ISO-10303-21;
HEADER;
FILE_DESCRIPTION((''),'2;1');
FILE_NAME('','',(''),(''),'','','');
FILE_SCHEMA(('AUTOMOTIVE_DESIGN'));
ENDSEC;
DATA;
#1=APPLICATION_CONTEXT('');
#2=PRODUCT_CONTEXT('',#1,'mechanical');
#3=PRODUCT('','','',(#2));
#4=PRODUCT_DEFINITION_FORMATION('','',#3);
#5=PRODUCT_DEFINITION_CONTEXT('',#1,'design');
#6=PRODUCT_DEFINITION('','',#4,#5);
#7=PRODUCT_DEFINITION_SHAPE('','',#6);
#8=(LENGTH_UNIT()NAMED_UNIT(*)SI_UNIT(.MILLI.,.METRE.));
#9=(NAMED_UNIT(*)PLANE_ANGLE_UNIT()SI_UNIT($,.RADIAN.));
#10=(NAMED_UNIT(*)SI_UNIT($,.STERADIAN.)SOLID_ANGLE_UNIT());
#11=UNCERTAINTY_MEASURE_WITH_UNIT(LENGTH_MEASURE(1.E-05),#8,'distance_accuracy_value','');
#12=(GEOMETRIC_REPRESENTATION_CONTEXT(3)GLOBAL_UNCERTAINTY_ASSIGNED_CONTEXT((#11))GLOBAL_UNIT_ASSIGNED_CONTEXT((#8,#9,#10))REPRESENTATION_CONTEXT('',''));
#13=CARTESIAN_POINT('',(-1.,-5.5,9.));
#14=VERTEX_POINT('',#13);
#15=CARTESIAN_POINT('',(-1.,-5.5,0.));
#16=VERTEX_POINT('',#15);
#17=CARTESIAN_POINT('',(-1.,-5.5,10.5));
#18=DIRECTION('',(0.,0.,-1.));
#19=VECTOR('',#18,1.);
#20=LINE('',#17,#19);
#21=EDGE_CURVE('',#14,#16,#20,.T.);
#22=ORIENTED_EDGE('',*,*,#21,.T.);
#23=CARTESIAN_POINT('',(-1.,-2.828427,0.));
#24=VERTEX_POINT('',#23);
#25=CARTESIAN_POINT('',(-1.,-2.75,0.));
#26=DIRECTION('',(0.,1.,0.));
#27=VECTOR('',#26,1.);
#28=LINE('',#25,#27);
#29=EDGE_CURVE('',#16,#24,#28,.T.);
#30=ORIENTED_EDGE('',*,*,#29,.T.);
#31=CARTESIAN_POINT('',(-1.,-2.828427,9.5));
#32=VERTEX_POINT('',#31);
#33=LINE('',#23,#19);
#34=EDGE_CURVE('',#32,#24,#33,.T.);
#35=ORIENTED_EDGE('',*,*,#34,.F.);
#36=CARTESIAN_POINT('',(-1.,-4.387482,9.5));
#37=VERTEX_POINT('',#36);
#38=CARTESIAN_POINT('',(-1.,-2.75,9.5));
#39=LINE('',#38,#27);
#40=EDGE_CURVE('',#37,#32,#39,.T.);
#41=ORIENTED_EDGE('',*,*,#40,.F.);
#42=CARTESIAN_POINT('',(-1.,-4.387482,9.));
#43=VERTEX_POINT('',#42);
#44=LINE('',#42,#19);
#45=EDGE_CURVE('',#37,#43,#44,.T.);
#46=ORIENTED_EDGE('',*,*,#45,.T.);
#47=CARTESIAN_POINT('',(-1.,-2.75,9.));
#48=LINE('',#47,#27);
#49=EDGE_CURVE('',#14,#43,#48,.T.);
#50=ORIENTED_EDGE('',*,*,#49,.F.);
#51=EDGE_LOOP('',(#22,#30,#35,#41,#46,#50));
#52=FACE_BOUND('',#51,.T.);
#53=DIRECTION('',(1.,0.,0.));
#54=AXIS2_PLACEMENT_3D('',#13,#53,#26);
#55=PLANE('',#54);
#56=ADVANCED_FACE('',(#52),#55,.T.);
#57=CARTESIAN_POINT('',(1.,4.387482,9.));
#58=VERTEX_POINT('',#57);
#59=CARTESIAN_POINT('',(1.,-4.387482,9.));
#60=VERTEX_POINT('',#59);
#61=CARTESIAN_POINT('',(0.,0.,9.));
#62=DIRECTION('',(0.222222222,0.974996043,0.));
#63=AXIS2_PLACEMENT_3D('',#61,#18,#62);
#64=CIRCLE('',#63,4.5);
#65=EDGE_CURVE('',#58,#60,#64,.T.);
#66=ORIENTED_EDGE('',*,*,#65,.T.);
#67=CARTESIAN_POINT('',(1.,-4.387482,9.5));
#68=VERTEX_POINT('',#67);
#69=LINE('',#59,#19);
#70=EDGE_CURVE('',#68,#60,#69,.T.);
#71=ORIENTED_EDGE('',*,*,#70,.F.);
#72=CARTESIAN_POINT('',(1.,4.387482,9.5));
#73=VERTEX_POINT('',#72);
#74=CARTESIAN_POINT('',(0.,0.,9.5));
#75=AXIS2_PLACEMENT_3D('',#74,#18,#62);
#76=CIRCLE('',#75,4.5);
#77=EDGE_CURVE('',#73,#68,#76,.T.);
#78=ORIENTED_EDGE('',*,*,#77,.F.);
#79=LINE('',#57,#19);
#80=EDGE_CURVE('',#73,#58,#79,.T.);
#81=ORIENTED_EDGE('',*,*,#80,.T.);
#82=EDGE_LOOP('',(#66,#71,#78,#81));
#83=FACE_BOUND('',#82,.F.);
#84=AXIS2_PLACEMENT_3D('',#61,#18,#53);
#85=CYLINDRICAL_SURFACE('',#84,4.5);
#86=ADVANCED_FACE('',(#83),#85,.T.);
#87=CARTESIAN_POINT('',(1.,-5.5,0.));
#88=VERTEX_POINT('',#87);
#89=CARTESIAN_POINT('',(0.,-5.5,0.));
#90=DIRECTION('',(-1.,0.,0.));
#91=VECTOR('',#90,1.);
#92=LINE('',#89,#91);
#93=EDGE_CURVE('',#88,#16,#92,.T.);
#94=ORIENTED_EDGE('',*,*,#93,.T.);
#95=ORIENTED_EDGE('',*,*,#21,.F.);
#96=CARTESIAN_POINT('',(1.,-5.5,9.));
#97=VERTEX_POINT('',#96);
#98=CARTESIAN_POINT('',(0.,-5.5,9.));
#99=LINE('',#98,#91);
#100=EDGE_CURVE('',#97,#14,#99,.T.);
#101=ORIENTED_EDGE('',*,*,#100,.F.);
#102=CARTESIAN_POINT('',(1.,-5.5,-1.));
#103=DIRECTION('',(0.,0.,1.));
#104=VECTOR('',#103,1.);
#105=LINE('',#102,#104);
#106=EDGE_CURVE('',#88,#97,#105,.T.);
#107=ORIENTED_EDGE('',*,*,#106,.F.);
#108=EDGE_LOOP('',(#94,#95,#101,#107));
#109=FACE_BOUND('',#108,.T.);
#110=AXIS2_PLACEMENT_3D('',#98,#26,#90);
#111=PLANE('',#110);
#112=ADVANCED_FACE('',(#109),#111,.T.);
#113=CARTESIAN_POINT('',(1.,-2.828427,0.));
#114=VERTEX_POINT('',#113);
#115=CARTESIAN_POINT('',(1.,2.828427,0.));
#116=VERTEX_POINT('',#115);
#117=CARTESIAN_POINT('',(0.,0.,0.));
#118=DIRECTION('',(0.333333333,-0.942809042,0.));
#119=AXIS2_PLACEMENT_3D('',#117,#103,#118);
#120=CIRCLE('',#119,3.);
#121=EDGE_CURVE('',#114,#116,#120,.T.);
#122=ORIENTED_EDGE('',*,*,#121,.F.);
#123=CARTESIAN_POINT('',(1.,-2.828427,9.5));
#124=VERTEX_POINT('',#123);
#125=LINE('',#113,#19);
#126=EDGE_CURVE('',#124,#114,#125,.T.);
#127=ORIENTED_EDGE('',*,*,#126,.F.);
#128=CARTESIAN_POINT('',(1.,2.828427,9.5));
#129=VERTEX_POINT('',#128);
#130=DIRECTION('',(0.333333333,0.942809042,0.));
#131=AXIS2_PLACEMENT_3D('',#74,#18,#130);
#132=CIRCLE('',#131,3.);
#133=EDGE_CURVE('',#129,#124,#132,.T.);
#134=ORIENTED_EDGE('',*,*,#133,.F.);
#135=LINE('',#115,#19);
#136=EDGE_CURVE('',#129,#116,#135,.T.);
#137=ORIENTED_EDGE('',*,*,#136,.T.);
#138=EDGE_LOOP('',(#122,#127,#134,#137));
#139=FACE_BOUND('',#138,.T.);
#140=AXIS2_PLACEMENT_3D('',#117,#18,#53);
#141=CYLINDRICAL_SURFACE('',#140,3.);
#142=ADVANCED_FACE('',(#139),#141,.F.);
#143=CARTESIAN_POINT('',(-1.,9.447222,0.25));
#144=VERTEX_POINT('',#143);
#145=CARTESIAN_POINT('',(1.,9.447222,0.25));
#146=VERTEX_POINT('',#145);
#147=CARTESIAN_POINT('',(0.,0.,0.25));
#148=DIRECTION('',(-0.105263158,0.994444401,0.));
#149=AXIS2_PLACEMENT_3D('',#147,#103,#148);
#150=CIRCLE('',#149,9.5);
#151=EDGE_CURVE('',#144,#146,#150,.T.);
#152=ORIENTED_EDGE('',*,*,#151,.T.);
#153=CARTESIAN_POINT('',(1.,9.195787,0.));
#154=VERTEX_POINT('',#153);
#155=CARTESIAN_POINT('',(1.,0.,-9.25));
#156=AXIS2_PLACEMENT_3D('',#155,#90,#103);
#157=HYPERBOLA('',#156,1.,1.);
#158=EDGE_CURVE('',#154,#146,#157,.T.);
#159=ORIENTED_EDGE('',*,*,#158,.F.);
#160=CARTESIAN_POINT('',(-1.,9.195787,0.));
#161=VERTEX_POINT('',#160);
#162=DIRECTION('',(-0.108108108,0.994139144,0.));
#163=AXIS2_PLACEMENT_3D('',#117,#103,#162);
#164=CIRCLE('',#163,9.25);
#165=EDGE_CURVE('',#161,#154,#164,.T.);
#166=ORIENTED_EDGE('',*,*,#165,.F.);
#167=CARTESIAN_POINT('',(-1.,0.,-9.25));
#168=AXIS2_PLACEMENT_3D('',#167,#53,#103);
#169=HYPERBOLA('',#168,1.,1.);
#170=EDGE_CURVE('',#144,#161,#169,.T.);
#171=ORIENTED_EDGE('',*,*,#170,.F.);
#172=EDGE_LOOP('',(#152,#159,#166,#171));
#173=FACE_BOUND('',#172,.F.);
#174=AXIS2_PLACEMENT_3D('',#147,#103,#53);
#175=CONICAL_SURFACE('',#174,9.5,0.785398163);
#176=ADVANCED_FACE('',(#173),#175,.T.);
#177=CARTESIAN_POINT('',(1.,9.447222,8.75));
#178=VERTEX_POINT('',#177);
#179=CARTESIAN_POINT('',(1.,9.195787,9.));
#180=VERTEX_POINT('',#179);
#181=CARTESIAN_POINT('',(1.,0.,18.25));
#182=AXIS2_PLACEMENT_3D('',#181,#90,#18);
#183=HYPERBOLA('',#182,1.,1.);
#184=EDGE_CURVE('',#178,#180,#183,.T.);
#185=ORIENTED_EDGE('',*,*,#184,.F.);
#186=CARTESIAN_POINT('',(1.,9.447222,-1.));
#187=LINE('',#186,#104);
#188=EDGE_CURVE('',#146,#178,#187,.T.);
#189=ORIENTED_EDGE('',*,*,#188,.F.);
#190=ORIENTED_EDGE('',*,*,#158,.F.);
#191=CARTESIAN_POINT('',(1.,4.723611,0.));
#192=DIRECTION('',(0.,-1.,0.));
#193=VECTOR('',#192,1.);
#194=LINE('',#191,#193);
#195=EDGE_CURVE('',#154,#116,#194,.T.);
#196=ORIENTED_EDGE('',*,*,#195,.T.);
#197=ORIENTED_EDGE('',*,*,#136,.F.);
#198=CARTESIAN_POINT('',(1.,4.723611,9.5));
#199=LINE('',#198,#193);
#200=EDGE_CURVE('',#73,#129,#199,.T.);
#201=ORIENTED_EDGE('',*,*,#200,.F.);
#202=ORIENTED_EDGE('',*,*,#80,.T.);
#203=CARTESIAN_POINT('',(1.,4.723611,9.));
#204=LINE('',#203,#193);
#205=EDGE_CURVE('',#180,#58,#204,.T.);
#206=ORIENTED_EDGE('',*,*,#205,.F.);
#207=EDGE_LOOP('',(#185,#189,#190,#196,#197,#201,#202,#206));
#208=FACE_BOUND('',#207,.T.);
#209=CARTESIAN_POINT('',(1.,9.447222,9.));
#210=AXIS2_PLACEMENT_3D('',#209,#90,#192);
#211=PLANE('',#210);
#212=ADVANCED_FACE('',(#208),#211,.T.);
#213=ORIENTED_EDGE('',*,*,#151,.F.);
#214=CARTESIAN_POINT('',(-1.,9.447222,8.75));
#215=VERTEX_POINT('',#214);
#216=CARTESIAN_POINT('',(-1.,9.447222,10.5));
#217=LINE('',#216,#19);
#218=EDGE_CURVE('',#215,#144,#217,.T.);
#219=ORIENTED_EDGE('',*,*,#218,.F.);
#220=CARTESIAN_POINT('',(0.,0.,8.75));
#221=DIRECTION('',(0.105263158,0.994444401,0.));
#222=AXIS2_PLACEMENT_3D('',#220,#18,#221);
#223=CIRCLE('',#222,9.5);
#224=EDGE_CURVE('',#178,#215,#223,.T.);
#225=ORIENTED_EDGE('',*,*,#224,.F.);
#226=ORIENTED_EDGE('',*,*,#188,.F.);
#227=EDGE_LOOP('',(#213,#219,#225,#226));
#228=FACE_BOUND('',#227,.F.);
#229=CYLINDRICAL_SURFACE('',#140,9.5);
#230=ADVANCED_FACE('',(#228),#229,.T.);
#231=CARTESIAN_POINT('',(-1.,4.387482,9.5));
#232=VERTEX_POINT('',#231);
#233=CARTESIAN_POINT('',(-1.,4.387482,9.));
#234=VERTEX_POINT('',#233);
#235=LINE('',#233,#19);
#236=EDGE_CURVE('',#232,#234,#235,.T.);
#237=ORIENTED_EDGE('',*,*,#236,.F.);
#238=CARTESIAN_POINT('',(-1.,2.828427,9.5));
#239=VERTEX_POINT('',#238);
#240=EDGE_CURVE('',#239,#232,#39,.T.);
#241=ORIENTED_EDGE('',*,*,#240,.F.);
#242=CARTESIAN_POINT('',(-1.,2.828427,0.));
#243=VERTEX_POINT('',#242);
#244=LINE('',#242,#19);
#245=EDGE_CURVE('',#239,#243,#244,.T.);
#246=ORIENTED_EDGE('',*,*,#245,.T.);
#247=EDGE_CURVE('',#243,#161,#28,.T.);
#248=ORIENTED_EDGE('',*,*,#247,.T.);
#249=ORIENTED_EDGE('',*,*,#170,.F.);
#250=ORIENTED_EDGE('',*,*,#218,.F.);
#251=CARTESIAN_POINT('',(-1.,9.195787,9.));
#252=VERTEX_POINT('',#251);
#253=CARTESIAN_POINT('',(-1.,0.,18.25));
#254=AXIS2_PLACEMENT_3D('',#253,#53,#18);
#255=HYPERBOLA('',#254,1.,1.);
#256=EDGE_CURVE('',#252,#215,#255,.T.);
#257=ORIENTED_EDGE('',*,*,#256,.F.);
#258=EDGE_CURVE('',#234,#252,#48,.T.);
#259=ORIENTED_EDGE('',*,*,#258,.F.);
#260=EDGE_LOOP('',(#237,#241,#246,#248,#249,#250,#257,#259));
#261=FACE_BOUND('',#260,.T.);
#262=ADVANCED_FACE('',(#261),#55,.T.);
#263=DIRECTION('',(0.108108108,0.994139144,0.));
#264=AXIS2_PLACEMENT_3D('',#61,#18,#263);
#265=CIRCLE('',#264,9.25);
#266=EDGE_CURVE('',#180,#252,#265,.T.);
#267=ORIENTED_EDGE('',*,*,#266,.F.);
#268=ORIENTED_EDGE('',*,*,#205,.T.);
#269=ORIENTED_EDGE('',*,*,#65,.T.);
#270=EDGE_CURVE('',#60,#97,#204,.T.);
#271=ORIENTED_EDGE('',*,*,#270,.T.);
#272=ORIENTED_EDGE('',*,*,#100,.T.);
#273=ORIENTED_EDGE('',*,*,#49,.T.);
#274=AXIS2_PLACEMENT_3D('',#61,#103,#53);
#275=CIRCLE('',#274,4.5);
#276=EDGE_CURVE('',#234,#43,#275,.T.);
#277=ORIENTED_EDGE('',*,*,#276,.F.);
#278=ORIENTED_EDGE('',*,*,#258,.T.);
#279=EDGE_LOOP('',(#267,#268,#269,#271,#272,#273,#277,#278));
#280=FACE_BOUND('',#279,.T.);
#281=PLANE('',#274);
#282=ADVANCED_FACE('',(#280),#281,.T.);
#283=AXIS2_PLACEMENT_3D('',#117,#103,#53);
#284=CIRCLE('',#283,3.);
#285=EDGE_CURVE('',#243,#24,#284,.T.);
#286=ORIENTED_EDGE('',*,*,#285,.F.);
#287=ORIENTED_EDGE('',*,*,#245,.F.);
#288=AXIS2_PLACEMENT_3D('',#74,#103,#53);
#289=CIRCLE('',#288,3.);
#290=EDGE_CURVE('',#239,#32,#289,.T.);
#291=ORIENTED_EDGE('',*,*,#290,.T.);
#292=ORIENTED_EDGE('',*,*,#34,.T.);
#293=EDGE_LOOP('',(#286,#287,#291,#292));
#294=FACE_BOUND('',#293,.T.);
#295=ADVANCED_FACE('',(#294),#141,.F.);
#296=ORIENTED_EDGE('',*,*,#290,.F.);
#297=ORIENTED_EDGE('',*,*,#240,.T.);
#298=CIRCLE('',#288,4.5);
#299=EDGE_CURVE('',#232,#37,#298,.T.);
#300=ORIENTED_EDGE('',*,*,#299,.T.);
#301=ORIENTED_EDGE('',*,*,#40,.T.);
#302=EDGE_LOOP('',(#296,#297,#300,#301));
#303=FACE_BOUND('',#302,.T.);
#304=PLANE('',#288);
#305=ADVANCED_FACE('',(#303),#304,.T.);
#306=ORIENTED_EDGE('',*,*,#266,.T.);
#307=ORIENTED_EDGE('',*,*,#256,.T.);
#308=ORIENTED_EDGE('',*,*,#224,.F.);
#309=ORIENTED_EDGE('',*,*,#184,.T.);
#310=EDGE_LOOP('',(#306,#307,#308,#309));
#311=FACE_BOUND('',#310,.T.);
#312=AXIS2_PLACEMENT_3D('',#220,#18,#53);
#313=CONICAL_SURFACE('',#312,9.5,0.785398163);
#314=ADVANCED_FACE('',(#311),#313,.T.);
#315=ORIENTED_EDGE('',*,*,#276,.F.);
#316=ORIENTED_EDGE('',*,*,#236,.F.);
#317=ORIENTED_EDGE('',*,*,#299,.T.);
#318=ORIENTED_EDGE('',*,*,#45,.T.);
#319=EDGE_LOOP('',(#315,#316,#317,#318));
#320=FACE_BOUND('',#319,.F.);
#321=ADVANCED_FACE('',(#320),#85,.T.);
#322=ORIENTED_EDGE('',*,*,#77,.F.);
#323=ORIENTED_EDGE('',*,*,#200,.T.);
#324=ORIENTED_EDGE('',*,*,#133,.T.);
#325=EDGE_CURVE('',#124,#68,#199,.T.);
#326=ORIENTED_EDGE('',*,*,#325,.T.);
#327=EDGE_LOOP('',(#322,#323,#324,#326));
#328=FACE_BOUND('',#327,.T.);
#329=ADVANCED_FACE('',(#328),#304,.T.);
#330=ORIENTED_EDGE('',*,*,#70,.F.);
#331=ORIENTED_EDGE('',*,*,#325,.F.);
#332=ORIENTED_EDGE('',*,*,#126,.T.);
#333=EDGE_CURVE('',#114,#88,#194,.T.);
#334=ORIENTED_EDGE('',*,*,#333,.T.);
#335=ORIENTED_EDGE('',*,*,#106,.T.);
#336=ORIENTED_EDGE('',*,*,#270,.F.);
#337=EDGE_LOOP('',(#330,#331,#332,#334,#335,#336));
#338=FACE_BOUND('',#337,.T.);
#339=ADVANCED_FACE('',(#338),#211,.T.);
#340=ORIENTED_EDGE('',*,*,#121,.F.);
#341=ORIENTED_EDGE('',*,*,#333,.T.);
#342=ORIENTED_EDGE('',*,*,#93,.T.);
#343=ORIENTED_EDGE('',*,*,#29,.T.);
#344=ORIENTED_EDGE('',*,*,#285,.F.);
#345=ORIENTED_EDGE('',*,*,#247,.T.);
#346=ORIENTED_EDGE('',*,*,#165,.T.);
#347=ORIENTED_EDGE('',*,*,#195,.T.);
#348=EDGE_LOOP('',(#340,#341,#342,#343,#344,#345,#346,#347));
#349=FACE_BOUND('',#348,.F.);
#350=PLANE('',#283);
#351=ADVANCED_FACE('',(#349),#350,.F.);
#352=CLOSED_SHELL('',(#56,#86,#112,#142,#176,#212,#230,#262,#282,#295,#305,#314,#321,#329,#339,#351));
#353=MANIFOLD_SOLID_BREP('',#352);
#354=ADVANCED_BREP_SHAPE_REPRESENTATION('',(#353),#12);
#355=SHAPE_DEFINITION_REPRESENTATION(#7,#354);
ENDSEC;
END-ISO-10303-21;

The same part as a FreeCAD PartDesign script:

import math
import FreeCAD as App
import Part
import Sketcher
Q = App.Units.Quantity


def edges_at(feature, points):
    """Names of the edges that pass closest to the given points."""
    edges = feature.Shape.Edges
    near = lambda p: min(range(len(edges)), key=lambda i: edges[i].distToShape(Part.Vertex(*p))[0])
    return sorted({f"Edge{near(p) + 1}" for p in points})

doc = App.newDocument("Part")
body = doc.addObject("PartDesign::Body", "Body")

# Sketch on XY plane
sketch1 = body.newObject("Sketcher::SketchObject", "Sketch")
sketch1.AttachmentSupport = (doc.getObject("XY_Plane"), [""])
sketch1.MapMode = "FlatFace"
sketch1.addGeometry(Part.Circle(App.Vector(0, 0, 0), App.Vector(0, 0, 1), 9.5), False)
sketch1.addGeometry(Part.Circle(App.Vector(0, 0, 0), App.Vector(0, 0, 1), 3), False)
sketch1.addConstraint(Sketcher.Constraint("Coincident", 0, 3, -1, 1))
sketch1.addConstraint(Sketcher.Constraint("Coincident", 1, 3, -1, 1))
sketch1.addConstraint(Sketcher.Constraint("Diameter", 0, Q("19 mm")))
sketch1.addConstraint(Sketcher.Constraint("Diameter", 1, Q("6 mm")))
pad1 = body.newObject("PartDesign::Pad", "Pad")
pad1.Profile = sketch1
pad1.Length = 9

# Sketch on XY plane
sketch2 = body.newObject("Sketcher::SketchObject", "Sketch001")
sketch2.AttachmentSupport = (doc.getObject("XY_Plane"), [""])
sketch2.MapMode = "FlatFace"
sketch2.AttachmentOffset = App.Placement(App.Vector(0, 0, 9), App.Rotation())
sketch2.addGeometry(Part.Circle(App.Vector(0, 0, 0), App.Vector(0, 0, 1), 4.5), False)
sketch2.addGeometry(Part.Circle(App.Vector(0, 0, 0), App.Vector(0, 0, 1), 3), False)
sketch2.addConstraint(Sketcher.Constraint("Coincident", 0, 3, -1, 1))
sketch2.addConstraint(Sketcher.Constraint("Coincident", 1, 3, -1, 1))
sketch2.addConstraint(Sketcher.Constraint("Diameter", 0, Q("9 mm")))
sketch2.addConstraint(Sketcher.Constraint("Diameter", 1, Q("6 mm")))
pad2 = body.newObject("PartDesign::Pad", "Pad001")
pad2.Profile = sketch2
pad2.Length = 0.5
doc.recompute()

chamfer = body.newObject("PartDesign::Chamfer", "Chamfer")
chamfer.Base = (pad2, edges_at(pad2, [(-9.5, 0, 9), (-9.5, 0, 0)]))
chamfer.Size = 0.25

# Sketch on XY plane
sketch3 = body.newObject("Sketcher::SketchObject", "Sketch002")
sketch3.AttachmentSupport = (doc.getObject("XY_Plane"), [""])
sketch3.MapMode = "FlatFace"
sketch3.AttachmentOffset = App.Placement(App.Vector(0, 0, 9), App.Rotation())
sketch3.addGeometry(Part.LineSegment(App.Vector(-1, -5.5, 0), App.Vector(1, -5.5, 0)), False)
sketch3.addGeometry(Part.LineSegment(App.Vector(1, -5.5, 0), App.Vector(1, 9.4, 0)), False)
sketch3.addGeometry(Part.ArcOfCircle(Part.Circle(App.Vector(0, 0, 0), App.Vector(0, 0, 1), 9.5), math.radians(83.96), math.radians(96.04)), False)
sketch3.addGeometry(Part.LineSegment(App.Vector(-1, 9.4, 0), App.Vector(-1, -5.5, 0)), False)
sketch3.addConstraint(Sketcher.Constraint("Coincident", 0, 2, 1, 1))
sketch3.addConstraint(Sketcher.Constraint("Coincident", 1, 2, 2, 1))
sketch3.addConstraint(Sketcher.Constraint("Coincident", 2, 2, 3, 1))
sketch3.addConstraint(Sketcher.Constraint("Coincident", 3, 2, 0, 1))
sketch3.addConstraint(Sketcher.Constraint("Horizontal", 0))
sketch3.addConstraint(Sketcher.Constraint("Vertical", 1))
sketch3.addConstraint(Sketcher.Constraint("Vertical", 3))
sketch3.addConstraint(Sketcher.Constraint("Coincident", 2, 3, -1, 1))
sketch3.addConstraint(Sketcher.Constraint("Horizontal", 1, 2, 2, 2))
sketch3.addConstraint(Sketcher.Constraint("DistanceX", 0, 1, 0, 2, Q("2 mm")))
sketch3.addConstraint(Sketcher.Constraint("Radius", 2, Q("9.5 mm")))
sketch3.addConstraint(Sketcher.Constraint("DistanceY", 0, 2, -1, 1, Q("5.5 mm")))
pocket1 = body.newObject("PartDesign::Pocket", "Pocket")
pocket1.Profile = sketch3
pocket1.Type = "ThroughAll"
pocket1.Midplane = True

doc.recompute()
